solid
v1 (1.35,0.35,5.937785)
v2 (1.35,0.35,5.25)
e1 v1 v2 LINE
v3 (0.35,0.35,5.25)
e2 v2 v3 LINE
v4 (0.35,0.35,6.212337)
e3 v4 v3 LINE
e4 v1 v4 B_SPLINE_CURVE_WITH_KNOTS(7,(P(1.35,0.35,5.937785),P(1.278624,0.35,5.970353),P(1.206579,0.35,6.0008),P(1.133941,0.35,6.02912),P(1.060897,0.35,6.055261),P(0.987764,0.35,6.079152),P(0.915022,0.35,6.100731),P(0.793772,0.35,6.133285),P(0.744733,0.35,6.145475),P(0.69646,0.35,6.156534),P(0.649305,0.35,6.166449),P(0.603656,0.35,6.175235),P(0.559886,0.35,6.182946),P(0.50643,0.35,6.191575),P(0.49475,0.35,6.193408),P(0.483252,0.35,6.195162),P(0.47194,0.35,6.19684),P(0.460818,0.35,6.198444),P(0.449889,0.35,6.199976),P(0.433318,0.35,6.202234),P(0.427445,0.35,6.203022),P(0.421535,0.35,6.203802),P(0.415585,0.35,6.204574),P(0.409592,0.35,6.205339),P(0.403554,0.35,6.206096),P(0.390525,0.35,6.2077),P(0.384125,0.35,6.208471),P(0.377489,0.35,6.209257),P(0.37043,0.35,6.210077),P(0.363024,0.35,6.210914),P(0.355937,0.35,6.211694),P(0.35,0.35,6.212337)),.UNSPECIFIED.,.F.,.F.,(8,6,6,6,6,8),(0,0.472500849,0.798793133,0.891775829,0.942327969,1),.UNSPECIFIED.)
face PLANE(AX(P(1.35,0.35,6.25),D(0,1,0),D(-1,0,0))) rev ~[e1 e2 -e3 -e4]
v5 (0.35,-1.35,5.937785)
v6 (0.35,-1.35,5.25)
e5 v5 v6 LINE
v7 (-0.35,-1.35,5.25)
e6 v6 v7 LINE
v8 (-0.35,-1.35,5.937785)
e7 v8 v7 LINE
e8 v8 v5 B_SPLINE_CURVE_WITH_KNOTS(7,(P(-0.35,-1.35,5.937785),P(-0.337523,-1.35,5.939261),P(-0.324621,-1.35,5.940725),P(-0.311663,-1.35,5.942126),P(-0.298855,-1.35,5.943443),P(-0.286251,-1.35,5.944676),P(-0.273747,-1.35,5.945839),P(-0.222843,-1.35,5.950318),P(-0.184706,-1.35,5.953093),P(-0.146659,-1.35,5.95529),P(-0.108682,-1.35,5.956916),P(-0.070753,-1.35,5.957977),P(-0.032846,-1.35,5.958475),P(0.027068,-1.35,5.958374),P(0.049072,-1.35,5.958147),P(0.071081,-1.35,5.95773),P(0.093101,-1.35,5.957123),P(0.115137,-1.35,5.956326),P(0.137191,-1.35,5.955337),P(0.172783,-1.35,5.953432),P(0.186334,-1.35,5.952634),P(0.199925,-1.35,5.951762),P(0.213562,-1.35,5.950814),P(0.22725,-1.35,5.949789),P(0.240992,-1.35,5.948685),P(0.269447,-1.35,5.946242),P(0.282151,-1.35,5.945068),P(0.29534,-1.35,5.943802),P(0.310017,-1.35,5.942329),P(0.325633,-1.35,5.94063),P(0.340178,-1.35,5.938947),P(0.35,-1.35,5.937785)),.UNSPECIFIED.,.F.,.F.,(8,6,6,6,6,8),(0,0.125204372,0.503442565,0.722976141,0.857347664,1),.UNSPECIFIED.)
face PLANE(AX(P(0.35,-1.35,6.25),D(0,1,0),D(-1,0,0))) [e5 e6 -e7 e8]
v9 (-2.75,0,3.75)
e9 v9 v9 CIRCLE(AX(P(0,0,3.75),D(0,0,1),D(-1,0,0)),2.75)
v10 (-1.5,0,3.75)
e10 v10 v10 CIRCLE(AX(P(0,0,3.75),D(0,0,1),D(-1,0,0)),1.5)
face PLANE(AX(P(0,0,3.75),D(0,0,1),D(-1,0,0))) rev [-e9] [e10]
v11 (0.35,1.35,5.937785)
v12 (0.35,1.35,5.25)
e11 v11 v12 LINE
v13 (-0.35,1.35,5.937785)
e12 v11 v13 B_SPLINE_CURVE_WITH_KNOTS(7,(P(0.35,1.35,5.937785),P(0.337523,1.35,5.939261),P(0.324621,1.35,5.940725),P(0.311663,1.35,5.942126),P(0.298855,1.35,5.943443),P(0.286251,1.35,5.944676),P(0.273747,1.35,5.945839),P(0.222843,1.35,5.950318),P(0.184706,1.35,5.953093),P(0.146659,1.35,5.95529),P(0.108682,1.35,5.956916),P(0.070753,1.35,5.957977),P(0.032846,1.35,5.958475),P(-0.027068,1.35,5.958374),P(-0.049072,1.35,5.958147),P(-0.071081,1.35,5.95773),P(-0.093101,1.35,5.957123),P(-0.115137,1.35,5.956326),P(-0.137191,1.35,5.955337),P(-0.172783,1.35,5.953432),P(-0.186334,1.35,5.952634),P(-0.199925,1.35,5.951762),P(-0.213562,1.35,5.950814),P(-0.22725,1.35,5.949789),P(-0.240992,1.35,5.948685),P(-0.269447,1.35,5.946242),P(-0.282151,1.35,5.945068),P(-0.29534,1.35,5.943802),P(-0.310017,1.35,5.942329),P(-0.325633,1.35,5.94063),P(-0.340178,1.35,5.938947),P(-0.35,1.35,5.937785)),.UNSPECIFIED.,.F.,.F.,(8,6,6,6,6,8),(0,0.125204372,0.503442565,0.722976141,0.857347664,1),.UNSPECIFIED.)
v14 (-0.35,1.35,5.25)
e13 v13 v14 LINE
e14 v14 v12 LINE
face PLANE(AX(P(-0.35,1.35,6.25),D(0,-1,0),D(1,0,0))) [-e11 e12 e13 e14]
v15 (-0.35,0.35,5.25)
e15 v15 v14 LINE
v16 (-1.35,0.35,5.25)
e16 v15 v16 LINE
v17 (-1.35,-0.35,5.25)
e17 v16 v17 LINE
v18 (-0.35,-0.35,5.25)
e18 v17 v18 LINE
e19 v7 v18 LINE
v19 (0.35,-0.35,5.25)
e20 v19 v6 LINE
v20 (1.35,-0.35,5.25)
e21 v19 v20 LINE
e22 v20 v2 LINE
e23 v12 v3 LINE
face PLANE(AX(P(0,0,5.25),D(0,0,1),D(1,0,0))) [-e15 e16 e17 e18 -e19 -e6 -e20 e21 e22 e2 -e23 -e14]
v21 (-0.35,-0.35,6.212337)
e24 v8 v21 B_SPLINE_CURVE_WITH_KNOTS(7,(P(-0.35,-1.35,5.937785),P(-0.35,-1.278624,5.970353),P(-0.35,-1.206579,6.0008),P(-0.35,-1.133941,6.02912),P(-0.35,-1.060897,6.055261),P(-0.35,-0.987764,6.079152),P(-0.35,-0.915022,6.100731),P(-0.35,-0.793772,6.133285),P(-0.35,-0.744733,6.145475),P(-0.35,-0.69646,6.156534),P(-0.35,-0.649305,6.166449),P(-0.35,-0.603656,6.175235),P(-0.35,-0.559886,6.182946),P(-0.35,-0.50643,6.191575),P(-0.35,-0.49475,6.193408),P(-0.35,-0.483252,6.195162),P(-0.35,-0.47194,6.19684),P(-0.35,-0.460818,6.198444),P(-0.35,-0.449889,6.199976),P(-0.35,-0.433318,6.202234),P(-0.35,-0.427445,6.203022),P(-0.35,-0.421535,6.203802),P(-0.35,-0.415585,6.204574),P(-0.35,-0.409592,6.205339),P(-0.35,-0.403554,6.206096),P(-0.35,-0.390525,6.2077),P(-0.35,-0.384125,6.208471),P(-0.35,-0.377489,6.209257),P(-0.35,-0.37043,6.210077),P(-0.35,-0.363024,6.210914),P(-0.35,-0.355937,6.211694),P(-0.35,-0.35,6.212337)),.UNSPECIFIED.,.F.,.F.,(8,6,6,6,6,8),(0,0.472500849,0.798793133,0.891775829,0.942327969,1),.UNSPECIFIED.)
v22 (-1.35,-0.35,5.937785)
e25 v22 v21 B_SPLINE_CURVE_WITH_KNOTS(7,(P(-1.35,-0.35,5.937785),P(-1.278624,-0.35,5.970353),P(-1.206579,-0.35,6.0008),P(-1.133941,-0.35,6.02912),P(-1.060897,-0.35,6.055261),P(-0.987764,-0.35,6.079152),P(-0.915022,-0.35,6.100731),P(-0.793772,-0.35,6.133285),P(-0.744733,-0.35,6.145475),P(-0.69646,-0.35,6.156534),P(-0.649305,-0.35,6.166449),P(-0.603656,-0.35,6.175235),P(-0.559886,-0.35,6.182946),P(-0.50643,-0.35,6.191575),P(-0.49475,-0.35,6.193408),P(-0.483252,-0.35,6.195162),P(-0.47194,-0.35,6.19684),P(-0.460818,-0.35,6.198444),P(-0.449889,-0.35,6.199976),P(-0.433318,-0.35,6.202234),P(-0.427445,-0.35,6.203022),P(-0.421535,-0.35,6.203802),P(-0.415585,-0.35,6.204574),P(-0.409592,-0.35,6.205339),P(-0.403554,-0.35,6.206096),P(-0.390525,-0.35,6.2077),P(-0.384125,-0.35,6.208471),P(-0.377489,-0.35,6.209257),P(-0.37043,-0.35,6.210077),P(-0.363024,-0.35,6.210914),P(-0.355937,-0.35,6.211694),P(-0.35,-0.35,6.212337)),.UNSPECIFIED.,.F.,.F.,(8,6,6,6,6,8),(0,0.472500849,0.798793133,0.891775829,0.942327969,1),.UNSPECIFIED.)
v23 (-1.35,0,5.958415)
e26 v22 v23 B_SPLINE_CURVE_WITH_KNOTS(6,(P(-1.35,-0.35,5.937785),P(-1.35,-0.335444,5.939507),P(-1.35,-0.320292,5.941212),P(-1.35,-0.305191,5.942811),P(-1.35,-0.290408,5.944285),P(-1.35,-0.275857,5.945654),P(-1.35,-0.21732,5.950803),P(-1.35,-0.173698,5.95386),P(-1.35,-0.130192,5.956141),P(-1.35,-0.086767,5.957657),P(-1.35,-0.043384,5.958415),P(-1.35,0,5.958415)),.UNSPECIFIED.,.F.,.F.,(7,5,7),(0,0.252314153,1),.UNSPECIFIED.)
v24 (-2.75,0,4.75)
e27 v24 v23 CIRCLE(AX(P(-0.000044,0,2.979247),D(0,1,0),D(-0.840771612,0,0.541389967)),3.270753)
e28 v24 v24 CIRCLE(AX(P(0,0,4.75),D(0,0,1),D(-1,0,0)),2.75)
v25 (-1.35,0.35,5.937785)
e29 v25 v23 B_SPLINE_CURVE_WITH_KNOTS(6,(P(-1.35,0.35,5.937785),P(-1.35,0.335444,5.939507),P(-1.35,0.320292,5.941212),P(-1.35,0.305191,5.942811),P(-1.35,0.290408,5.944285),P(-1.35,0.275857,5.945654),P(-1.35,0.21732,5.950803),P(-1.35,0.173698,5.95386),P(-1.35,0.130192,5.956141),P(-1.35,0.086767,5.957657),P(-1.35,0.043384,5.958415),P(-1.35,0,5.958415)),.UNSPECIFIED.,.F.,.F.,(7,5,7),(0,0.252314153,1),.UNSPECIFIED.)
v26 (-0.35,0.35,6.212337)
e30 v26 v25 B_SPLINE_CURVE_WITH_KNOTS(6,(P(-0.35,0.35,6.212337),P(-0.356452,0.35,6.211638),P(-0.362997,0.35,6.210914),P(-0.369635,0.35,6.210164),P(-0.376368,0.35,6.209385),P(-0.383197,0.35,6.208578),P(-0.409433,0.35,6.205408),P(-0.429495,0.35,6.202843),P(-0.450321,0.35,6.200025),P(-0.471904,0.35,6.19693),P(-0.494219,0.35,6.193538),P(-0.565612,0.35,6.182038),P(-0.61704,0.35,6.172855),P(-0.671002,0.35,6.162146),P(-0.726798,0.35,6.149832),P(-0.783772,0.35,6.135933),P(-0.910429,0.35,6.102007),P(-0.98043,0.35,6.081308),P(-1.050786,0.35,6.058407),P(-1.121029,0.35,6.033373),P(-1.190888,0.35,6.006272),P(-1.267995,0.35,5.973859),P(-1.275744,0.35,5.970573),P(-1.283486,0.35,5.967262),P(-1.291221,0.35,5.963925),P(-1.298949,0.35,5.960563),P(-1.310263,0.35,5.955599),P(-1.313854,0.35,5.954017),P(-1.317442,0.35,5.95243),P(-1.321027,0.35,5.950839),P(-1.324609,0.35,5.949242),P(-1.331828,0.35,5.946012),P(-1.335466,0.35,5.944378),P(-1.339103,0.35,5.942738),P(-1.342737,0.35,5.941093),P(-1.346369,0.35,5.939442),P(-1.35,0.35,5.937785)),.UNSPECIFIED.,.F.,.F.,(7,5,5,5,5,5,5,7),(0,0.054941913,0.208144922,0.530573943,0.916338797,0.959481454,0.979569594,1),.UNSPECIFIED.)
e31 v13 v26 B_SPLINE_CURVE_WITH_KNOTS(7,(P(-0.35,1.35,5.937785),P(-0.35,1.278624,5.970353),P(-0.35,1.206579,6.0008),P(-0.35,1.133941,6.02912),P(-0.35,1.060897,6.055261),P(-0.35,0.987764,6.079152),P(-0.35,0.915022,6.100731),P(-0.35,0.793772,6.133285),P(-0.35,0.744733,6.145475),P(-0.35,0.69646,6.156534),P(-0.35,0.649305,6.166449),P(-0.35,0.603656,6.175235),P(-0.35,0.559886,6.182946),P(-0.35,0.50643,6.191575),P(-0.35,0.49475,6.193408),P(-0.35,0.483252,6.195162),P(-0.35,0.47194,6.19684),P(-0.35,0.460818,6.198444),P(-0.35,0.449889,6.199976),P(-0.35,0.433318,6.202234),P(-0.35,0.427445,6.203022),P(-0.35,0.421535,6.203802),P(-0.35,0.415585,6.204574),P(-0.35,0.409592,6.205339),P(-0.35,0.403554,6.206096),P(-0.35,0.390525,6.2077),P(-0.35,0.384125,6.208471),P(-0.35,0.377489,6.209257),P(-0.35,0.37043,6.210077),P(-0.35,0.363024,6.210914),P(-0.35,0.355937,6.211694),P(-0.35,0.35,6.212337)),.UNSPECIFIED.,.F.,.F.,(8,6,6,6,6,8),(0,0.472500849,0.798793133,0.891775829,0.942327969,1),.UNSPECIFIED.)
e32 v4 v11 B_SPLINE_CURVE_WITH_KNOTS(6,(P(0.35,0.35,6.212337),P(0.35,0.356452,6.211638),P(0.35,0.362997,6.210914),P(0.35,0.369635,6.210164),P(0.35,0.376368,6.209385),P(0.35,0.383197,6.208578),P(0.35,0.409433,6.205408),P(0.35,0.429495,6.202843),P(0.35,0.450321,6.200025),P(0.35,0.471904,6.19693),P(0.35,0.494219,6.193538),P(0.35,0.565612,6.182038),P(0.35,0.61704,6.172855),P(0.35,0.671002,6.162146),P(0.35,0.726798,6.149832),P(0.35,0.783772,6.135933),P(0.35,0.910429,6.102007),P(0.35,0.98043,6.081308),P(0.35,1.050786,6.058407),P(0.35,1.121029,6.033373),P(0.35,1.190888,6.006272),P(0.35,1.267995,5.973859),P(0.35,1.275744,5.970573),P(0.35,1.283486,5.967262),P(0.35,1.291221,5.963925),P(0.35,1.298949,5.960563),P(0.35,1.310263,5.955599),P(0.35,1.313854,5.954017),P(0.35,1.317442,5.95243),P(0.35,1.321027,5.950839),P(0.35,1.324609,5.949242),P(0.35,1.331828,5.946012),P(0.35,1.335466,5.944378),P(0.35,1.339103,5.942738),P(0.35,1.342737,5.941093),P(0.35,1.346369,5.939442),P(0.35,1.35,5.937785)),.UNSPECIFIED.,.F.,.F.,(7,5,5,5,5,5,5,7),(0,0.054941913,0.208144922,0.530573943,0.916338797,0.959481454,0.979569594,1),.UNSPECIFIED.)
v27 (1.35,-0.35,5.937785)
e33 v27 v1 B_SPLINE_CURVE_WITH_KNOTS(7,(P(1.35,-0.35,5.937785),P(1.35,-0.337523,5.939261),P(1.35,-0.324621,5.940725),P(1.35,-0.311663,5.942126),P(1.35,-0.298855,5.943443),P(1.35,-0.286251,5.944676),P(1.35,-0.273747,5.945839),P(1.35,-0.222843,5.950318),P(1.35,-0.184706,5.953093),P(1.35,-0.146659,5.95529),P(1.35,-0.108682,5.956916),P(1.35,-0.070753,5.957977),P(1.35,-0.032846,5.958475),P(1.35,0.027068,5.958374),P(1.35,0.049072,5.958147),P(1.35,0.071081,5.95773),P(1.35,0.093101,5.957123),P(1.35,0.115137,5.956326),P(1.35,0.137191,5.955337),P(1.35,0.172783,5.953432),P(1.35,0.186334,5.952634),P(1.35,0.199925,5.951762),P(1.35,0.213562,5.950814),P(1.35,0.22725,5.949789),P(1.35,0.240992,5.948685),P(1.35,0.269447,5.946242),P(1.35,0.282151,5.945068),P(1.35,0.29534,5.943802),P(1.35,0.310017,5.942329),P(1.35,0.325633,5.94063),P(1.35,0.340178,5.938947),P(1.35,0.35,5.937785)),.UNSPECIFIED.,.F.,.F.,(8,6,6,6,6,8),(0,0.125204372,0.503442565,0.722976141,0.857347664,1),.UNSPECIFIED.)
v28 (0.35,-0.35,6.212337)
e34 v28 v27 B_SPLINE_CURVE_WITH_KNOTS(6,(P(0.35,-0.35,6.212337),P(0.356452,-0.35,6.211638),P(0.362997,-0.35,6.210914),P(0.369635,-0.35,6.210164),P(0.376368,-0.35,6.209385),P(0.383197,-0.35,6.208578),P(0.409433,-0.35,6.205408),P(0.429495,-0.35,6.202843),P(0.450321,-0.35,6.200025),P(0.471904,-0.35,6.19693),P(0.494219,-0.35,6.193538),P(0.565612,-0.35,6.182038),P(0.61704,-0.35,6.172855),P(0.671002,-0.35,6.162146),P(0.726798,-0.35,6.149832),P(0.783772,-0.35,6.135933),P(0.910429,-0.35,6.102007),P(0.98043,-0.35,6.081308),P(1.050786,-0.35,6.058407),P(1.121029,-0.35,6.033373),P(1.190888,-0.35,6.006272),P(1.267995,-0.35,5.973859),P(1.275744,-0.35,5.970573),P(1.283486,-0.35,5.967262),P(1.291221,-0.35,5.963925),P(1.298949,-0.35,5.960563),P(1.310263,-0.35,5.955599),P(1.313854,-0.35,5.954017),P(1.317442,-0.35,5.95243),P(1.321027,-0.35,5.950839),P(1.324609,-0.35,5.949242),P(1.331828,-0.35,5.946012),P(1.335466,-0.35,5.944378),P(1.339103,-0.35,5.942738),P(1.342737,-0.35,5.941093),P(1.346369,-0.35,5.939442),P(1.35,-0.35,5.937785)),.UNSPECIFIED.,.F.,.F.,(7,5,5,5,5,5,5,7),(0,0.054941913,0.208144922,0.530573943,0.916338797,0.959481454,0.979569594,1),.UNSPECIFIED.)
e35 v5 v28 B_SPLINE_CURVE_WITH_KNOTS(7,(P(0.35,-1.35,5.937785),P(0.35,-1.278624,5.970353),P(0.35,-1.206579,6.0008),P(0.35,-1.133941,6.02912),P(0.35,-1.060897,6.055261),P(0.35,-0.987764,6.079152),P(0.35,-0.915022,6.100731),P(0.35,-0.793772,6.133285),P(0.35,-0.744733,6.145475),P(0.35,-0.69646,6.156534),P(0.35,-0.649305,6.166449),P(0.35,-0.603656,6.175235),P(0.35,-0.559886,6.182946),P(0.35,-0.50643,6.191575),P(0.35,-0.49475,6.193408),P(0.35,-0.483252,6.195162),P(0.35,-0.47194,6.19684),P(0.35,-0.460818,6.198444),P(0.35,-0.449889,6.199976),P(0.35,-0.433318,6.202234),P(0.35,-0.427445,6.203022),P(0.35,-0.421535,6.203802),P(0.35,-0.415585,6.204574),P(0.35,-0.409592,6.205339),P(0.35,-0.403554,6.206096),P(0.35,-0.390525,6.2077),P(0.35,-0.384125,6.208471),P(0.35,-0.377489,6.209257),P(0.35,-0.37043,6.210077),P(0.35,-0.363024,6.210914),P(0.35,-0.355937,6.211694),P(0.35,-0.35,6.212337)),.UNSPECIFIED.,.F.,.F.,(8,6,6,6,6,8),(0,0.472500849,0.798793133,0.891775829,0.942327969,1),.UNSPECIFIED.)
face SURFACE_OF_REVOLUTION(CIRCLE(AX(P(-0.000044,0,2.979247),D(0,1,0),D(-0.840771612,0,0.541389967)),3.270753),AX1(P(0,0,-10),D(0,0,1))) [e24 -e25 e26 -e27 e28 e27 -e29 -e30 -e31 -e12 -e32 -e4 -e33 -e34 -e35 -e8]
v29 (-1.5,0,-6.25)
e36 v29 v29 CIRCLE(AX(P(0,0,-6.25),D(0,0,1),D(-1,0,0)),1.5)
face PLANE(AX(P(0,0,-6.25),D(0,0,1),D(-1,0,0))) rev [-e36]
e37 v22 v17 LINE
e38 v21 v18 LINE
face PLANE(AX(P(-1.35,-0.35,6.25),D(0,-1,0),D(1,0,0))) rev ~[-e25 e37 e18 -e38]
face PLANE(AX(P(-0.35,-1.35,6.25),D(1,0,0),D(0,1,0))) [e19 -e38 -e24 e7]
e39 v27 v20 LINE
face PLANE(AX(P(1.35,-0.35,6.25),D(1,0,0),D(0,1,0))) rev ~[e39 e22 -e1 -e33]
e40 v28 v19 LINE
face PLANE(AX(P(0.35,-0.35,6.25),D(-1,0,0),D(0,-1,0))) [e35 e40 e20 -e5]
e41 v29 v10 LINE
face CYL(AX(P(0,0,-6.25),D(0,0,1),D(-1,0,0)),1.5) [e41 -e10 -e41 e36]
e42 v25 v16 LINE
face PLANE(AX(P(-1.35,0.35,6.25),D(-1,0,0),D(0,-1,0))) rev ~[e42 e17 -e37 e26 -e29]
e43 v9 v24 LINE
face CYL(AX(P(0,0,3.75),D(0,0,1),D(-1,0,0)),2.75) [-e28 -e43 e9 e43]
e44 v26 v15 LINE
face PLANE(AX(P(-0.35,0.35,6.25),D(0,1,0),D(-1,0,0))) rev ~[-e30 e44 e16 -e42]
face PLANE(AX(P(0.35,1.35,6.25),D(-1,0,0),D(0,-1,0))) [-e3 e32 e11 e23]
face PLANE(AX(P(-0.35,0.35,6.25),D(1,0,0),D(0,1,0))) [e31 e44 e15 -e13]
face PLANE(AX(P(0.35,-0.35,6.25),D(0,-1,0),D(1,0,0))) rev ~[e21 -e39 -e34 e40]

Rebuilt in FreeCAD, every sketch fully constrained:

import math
import FreeCAD as App
import Part
import Sketcher
from FreeCAD import Vector


def add_polygon(sketch, points):
    """Adds a closed chain of lines whose ends are joined by coincident constraints."""
    first, n = sketch.GeometryCount, len(points)
    for a, b in zip(points, points[1:] + points[:1]):
        sketch.addGeometry(Part.LineSegment(App.Vector(*a, 0), App.Vector(*b, 0)), False)
    for i in range(n):
        sketch.addConstraint(Sketcher.Constraint("Coincident", first + i, 2, first + (i + 1) % n, 1))

doc = App.newDocument("Part")
body = doc.addObject("PartDesign::Body", "Body")

# Sketch on XZ plane
sketch1 = body.newObject("Sketcher::SketchObject", "Sketch")
sketch1.AttachmentSupport = (doc.getObject("XZ_Plane"), [""])
sketch1.MapMode = "FlatFace"
sketch1.addGeometry(Part.LineSegment(Vector(0, -6.25, 0), Vector(-1.5, -6.25, 0)), False)
sketch1.addGeometry(Part.LineSegment(Vector(-1.5, -6.25, 0), Vector(-1.5, 3.75, 0)), False)
sketch1.addGeometry(Part.LineSegment(Vector(-1.5, 3.75, 0), Vector(-2.75, 3.75, 0)), False)
sketch1.addGeometry(Part.LineSegment(Vector(-2.75, 3.75, 0), Vector(-2.75, 4.75, 0)), False)
sketch1.addGeometry(Part.ArcOfCircle(Part.Circle(Vector(0, 2.9792, 0), Vector(0, 0, 1), 3.270815), math.radians(90), math.radians(147.22141)), False)
sketch1.addGeometry(Part.LineSegment(Vector(0, 6.25, 0), Vector(0, -6.25, 0)), False)
sketch1.addConstraint(Sketcher.Constraint("Coincident", 0, 2, 1, 1))
sketch1.addConstraint(Sketcher.Constraint("Coincident", 1, 2, 2, 1))
sketch1.addConstraint(Sketcher.Constraint("Coincident", 2, 2, 3, 1))
sketch1.addConstraint(Sketcher.Constraint("Coincident", 3, 2, 4, 2))
sketch1.addConstraint(Sketcher.Constraint("Coincident", 4, 1, 5, 1))
sketch1.addConstraint(Sketcher.Constraint("Coincident", 5, 2, 0, 1))
sketch1.addConstraint(Sketcher.Constraint("Horizontal", 0))
sketch1.addConstraint(Sketcher.Constraint("Vertical", 1))
sketch1.addConstraint(Sketcher.Constraint("Horizontal", 2))
sketch1.addConstraint(Sketcher.Constraint("Vertical", 3))
sketch1.addConstraint(Sketcher.Constraint("Vertical", 5))
sketch1.addConstraint(Sketcher.Constraint("Symmetric", 4, 1, 5, 2, -1, 1))
sketch1.addConstraint(Sketcher.Constraint("PointOnObject", 4, 3, -2))
sketch1.addConstraint(Sketcher.Constraint("DistanceY", 1, 1, 1, 2, 10.0))
sketch1.addConstraint(Sketcher.Constraint("DistanceY", 3, 1, 3, 2, 1.0))
sketch1.addConstraint(Sketcher.Constraint("DistanceY", 1, 2, 4, 1, 2.5))
sketch1.addConstraint(Sketcher.Constraint("DistanceX", 0, 2, 0, 1, 1.5))
sketch1.addConstraint(Sketcher.Constraint("DistanceX", 2, 2, 2, 1, 1.25))
revolution = body.newObject("PartDesign::Revolution", "Revolution")
revolution.Profile = sketch1
revolution.ReferenceAxis = (sketch1, ["V_Axis"])
revolution.Angle = 360

# Sketch on XY plane
sketch2 = body.newObject("Sketcher::SketchObject", "Sketch001")
sketch2.AttachmentSupport = (doc.getObject("XY_Plane"), [""])
sketch2.MapMode = "FlatFace"
sketch2.AttachmentOffset = App.Placement(Vector(0, 0, 6.25), App.Rotation())
add_polygon(sketch2, [(-1.35, 0.35), (-1.35, -0.35), (-0.35, -0.35), (-0.35, -1.35), (0.35, -1.35), (0.35, -0.35), (1.35, -0.35), (1.35, 0.35), (0.35, 0.35), (0.35, 1.35), (-0.35, 1.35), (-0.35, 0.35)])  # lines 0-11
sketch2.addConstraint(Sketcher.Constraint("Vertical", 0))
sketch2.addConstraint(Sketcher.Constraint("Horizontal", 1))
sketch2.addConstraint(Sketcher.Constraint("Vertical", 2))
sketch2.addConstraint(Sketcher.Constraint("Horizontal", 3))
sketch2.addConstraint(Sketcher.Constraint("Vertical", 4))
sketch2.addConstraint(Sketcher.Constraint("Horizontal", 5))
sketch2.addConstraint(Sketcher.Constraint("Vertical", 6))
sketch2.addConstraint(Sketcher.Constraint("Horizontal", 7))
sketch2.addConstraint(Sketcher.Constraint("Vertical", 8))
sketch2.addConstraint(Sketcher.Constraint("Horizontal", 9))
sketch2.addConstraint(Sketcher.Constraint("Vertical", 10))
sketch2.addConstraint(Sketcher.Constraint("Horizontal", 11))
sketch2.addConstraint(Sketcher.Constraint("Symmetric", 0, 2, 6, 2, -1, 1))
sketch2.addConstraint(Sketcher.Constraint("Symmetric", 2, 2, 8, 2, -1, 1))
sketch2.addConstraint(Sketcher.Constraint("Symmetric", 4, 2, 10, 2, -1, 1))
sketch2.addConstraint(Sketcher.Constraint("Symmetric", 1, 2, 4, 2, -2))
sketch2.addConstraint(Sketcher.Constraint("Equal", 9, 0))
sketch2.addConstraint(Sketcher.Constraint("Equal", 11, 2))
sketch2.addConstraint(Sketcher.Constraint("DistanceX", 3, 1, 3, 2, 0.7))
sketch2.addConstraint(Sketcher.Constraint("DistanceX", 0, 2, 5, 2, 2.7))
pocket1 = body.newObject("PartDesign::Pocket", "Pocket")
pocket1.Profile = sketch2
pocket1.Length = 1

doc.recompute()
